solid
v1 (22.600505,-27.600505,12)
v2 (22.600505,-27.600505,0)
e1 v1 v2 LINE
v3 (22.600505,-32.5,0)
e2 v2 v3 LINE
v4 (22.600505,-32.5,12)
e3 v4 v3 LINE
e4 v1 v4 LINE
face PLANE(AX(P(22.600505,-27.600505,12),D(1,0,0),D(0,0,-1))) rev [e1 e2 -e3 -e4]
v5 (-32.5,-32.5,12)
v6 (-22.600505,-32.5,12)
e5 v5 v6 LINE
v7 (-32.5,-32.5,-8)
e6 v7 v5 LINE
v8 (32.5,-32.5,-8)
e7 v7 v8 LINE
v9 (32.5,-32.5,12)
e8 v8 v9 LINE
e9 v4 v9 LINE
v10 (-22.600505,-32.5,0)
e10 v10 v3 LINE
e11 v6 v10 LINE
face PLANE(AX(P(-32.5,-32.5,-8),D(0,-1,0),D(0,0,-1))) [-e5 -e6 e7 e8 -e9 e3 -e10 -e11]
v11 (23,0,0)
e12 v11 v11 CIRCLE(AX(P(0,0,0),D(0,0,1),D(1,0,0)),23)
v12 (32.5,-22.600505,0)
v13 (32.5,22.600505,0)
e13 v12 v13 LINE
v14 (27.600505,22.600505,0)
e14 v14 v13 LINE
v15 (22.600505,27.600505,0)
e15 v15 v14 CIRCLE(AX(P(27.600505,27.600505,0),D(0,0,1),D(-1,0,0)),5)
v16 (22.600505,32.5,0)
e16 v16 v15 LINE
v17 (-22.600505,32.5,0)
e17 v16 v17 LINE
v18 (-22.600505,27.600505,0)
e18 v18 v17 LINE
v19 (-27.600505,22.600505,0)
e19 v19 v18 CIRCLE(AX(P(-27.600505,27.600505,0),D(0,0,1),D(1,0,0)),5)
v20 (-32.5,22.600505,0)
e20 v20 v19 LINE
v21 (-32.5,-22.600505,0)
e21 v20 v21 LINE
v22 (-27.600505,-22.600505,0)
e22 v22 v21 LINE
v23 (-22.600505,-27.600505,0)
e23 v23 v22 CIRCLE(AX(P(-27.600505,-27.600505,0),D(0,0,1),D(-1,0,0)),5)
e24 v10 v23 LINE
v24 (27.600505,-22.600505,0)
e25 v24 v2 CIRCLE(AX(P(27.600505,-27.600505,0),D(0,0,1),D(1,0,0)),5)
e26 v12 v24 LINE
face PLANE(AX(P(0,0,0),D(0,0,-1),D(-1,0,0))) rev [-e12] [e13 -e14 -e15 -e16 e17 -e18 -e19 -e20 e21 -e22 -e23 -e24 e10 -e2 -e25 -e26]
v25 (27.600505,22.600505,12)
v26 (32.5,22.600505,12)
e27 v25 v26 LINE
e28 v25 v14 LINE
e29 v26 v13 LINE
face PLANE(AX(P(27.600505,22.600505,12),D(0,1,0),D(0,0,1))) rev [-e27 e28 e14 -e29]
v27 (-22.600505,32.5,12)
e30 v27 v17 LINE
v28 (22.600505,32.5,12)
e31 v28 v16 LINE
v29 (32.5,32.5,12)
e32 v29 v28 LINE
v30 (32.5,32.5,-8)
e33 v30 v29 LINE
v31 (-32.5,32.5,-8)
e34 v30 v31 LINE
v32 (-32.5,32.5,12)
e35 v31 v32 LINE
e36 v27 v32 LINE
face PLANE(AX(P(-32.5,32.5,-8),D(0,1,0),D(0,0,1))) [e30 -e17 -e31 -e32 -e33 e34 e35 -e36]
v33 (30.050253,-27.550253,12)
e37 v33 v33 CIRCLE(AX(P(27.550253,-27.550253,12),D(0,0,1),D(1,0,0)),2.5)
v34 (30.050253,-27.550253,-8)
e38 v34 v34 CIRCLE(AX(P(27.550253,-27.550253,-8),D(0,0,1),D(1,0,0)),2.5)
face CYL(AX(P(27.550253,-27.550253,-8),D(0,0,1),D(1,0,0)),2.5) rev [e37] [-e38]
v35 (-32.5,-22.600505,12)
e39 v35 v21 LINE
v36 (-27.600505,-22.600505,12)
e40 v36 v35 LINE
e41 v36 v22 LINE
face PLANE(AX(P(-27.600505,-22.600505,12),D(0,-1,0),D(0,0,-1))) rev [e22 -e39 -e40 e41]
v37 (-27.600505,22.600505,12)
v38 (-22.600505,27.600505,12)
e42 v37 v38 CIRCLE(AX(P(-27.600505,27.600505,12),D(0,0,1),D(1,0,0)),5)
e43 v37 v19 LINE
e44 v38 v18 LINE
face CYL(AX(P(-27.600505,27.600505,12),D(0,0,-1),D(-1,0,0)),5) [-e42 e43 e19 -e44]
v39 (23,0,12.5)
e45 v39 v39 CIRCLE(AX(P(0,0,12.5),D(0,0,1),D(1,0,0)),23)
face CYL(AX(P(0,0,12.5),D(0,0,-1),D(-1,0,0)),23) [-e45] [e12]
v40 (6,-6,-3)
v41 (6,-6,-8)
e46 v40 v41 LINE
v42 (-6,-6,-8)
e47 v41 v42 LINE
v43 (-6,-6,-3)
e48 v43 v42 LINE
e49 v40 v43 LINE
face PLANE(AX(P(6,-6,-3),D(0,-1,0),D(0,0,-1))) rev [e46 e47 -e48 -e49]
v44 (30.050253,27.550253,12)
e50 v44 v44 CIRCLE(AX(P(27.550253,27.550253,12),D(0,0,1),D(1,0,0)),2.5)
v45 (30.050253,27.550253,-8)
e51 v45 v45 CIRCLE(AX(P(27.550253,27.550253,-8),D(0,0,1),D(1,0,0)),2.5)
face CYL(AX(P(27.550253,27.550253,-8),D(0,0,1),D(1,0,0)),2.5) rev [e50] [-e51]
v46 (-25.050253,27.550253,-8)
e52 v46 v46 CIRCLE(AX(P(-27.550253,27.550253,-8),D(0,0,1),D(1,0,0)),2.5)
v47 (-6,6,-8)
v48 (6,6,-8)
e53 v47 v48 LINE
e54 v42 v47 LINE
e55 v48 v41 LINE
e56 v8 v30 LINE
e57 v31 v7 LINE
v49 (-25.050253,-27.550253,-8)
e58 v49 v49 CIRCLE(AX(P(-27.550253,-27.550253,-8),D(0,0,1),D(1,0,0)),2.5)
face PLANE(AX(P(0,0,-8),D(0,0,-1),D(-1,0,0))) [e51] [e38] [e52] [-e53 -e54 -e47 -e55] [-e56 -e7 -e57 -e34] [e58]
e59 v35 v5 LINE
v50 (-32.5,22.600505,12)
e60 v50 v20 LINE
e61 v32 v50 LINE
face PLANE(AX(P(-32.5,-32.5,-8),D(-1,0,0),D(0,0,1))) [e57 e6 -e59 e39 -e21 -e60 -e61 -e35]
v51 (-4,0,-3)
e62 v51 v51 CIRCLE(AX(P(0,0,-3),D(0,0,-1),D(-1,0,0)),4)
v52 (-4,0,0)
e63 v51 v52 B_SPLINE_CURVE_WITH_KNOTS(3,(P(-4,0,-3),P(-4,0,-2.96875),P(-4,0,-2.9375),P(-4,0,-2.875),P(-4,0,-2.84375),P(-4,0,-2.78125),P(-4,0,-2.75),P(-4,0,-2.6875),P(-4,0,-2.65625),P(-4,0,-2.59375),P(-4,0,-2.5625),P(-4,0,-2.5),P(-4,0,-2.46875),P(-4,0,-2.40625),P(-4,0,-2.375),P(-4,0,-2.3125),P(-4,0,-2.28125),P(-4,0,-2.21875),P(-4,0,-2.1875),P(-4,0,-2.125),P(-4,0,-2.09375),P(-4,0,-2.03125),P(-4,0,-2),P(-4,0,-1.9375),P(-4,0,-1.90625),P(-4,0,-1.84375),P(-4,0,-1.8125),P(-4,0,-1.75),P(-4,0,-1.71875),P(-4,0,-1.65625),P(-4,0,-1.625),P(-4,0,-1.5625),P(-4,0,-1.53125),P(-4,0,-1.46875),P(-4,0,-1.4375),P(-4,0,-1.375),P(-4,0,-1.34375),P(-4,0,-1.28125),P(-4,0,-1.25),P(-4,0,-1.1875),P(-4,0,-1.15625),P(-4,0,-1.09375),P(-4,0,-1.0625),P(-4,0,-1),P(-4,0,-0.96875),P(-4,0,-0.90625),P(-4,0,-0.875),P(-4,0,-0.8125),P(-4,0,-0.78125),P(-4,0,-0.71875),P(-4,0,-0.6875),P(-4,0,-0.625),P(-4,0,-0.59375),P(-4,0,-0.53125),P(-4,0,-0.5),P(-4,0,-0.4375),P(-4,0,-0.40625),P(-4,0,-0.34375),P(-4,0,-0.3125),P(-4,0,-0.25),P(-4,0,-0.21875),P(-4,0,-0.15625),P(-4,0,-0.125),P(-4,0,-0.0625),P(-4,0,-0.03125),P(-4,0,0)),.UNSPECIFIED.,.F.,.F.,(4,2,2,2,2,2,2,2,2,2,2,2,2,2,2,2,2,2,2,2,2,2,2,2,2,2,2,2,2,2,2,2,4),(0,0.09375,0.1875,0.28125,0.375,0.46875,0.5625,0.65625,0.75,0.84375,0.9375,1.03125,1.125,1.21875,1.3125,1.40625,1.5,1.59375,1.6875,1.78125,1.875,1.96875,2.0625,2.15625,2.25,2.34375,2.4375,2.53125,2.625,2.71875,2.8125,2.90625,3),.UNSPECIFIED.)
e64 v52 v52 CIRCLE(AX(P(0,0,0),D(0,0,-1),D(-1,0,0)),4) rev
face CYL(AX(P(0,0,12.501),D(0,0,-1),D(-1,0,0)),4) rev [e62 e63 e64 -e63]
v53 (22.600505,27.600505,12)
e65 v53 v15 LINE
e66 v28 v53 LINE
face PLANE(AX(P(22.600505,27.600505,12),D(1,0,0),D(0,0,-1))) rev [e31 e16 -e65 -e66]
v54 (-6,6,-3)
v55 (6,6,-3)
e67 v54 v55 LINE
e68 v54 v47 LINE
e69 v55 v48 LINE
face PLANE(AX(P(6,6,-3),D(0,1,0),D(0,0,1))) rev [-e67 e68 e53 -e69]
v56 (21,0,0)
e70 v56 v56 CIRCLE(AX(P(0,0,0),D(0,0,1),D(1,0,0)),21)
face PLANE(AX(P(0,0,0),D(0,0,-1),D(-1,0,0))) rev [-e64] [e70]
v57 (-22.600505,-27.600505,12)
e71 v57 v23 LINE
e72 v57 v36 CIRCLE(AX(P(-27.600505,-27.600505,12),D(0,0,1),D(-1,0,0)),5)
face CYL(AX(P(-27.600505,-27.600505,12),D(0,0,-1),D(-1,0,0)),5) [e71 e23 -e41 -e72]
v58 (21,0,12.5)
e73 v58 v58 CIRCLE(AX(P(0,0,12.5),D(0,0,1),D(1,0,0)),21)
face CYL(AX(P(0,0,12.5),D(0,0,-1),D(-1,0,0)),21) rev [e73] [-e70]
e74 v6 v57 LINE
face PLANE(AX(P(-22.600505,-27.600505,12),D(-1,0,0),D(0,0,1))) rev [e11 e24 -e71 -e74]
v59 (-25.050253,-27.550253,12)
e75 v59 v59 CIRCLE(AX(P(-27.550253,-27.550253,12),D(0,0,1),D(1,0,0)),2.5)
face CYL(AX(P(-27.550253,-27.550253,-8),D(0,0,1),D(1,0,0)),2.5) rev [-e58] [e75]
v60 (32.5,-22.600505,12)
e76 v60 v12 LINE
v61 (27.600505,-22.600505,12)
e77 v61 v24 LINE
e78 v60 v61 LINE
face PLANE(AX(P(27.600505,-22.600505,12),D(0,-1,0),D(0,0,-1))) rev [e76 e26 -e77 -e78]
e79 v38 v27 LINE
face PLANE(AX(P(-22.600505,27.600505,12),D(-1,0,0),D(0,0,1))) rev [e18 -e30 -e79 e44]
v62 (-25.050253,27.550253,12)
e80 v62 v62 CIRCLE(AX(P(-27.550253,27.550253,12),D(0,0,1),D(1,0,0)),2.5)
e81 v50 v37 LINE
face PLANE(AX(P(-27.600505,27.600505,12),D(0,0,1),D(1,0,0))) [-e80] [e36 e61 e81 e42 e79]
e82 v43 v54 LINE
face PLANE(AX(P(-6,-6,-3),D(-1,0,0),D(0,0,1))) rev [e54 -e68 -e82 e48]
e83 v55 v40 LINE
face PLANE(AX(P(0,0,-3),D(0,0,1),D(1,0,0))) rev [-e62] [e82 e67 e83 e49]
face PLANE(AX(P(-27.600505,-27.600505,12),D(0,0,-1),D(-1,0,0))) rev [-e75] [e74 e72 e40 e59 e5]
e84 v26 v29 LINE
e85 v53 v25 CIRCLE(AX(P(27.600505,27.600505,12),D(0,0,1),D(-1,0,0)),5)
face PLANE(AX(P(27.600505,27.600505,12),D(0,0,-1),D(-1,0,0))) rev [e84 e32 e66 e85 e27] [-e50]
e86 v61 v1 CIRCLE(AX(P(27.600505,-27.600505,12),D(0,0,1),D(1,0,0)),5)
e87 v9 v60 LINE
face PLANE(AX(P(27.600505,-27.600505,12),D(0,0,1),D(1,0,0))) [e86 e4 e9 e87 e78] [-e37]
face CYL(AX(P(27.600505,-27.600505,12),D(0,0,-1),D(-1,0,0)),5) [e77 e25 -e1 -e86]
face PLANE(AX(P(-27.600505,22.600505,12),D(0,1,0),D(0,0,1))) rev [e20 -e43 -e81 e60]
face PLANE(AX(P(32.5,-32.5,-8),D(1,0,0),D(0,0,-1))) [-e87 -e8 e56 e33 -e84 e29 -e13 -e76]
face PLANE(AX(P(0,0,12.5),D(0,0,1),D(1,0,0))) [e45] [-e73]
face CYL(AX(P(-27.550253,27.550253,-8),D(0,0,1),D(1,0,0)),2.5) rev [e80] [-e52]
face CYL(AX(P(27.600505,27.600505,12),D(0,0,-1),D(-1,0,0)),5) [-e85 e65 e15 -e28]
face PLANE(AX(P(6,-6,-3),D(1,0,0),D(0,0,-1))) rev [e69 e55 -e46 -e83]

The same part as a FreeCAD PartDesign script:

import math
import FreeCAD as App
import Part
import Sketcher

V = App.Vector
Q = App.Units.Quantity


def add_polygon(sketch, points):
    """Adds a closed chain of lines whose ends are joined by coincident constraints."""
    first, n = sketch.GeometryCount, len(points)
    for a, b in zip(points, points[1:] + points[:1]):
        sketch.addGeometry(Part.LineSegment(App.Vector(*a, 0), App.Vector(*b, 0)), False)
    for i in range(n):
        sketch.addConstraint(Sketcher.Constraint("Coincident", first + i, 2, first + (i + 1) % n, 1))

doc = App.newDocument("Part")
body = doc.addObject("PartDesign::Body", "Body")

sketch1 = body.newObject("Sketcher::SketchObject", "Sketch")
sketch1.AttachmentSupport = (doc.getObject("XY_Plane"), [""])
sketch1.MapMode = "FlatFace"
sketch1.addGeometry([
    Part.Circle(V(0, 0, 0), V(0, 0, 1), 23),
    Part.Circle(V(0, 0, 0), V(0, 0, 1), 21),
], False)
sketch1.addConstraint([
    Sketcher.Constraint("Coincident", 0, 3, -1, 1),
    Sketcher.Constraint("Coincident", 1, 3, -1, 1),
    Sketcher.Constraint("Diameter", 0, Q("46 mm")),
    Sketcher.Constraint("Diameter", 1, Q("42 mm")),
])
pad1 = body.newObject("PartDesign::Pad", "Pad")
pad1.Profile = sketch1
pad1.Length = 12.5

sketch2 = body.newObject("Sketcher::SketchObject", "Sketch001")
sketch2.AttachmentSupport = (doc.getObject("XY_Plane"), [""])
sketch2.MapMode = "FlatFace"
add_polygon(sketch2, [(-32.5, 32.5), (-32.5, -32.5), (32.5, -32.5), (32.5, 32.5)])
sketch2.addGeometry(Part.Circle(V(-27.550253, -27.550253, 0), V(0, 0, 1), 2.5), False)
sketch2.addGeometry(Part.Circle(V(27.550253, -27.550253, 0), V(0, 0, 1), 2.5), False)
sketch2.addGeometry(Part.Circle(V(-27.550253, 27.550253, 0), V(0, 0, 1), 2.5), False)
sketch2.addGeometry(Part.Circle(V(27.550253, 27.550253, 0), V(0, 0, 1), 2.5), False)
sketch2.addConstraint([
    Sketcher.Constraint("Vertical", 0),
    Sketcher.Constraint("Horizontal", 1),
    Sketcher.Constraint("Vertical", 2),
    Sketcher.Constraint("Horizontal", 3),
    Sketcher.Constraint("Equal", 4, 5),
    Sketcher.Constraint("Equal", 5, 6),
    Sketcher.Constraint("Equal", 6, 7),
    Sketcher.Constraint("Symmetric", 5, 3, 6, 3, -1, 1),
    Sketcher.Constraint("Symmetric", 4, 3, 7, 3, -1, 1),
    Sketcher.Constraint("Symmetric", 0, 2, 2, 2, -1, 1),
    Sketcher.Constraint("Symmetric", 4, 3, 5, 3, -2),
    Sketcher.Constraint("Equal", 3, 0),
    Sketcher.Constraint("Diameter", 4, Q("5 mm")),
    Sketcher.Constraint("DistanceX", 1, 1, 1, 2, Q("65 mm")),
    Sketcher.Constraint("DistanceX", 4, 3, -1, 1, Q("27.550253 mm")),
    Sketcher.Constraint("DistanceY", 4, 3, -1, 1, Q("27.550253 mm")),
])
pad2 = body.newObject("PartDesign::Pad", "Pad001")
pad2.Profile = sketch2
pad2.Length = 8
pad2.Reversed = True

sketch3 = body.newObject("Sketcher::SketchObject", "Sketch002")
sketch3.AttachmentSupport = (doc.getObject("XY_Plane"), [""])
sketch3.MapMode = "FlatFace"
sketch3.AttachmentOffset = App.Placement(V(0, 0, -8), App.Rotation())
add_polygon(sketch3, [(6, 6), (6, -6), (-6, -6), (-6, 6)])
sketch3.addConstraint([
    Sketcher.Constraint("Vertical", 0),
    Sketcher.Constraint("Horizontal", 1),
    Sketcher.Constraint("Vertical", 2),
    Sketcher.Constraint("Horizontal", 3),
    Sketcher.Constraint("Symmetric", 0, 2, 2, 2, -1, 1),
    Sketcher.Constraint("Equal", 3, 0),
    Sketcher.Constraint("DistanceX", 1, 2, 1, 1, Q("12 mm")),
])
pocket1 = body.newObject("PartDesign::Pocket", "Pocket")
pocket1.Profile = sketch3
pocket1.Length = 5
pocket1.Reversed = True

sketch4 = body.newObject("Sketcher::SketchObject", "Sketch003")
sketch4.AttachmentSupport = (doc.getObject("XY_Plane"), [""])
sketch4.MapMode = "FlatFace"
sketch4.AttachmentOffset = App.Placement(V(0, 0, -3), App.Rotation())
sketch4.addGeometry(Part.Circle(V(0, 0, 0), V(0, 0, 1), 4), False)
sketch4.addConstraint([
    Sketcher.Constraint("Coincident", 0, 3, -1, 1),
    Sketcher.Constraint("Diameter", 0, Q("8 mm")),
])
pocket2 = body.newObject("PartDesign::Pocket", "Pocket001")
pocket2.Profile = sketch4
pocket2.Type = "UpToFirst"
pocket2.Reversed = True

sketch5 = body.newObject("Sketcher::SketchObject", "Sketch004")
sketch5.AttachmentSupport = (doc.getObject("XY_Plane"), [""])
sketch5.MapMode = "FlatFace"
sketch5.AttachmentOffset = App.Placement(V(0, 0, 12), App.Rotation())
sketch5.addGeometry([
    Part.LineSegment(V(27.600505, 22.600505, 0), V(32.5, 22.600505, 0)),
    Part.LineSegment(V(32.5, 22.600505, 0), V(32.5, 32.5, 0)),
    Part.LineSegment(V(32.5, 32.5, 0), V(22.600505, 32.5, 0)),
    Part.LineSegment(V(22.600505, 32.5, 0), V(22.600505, 27.600505, 0)),
    Part.ArcOfCircle(Part.Circle(V(27.600505, 27.600505, 0), V(0, 0, 1), 5), math.radians(180), math.radians(270)),
    Part.Circle(V(27.550253, 27.550253, 0), V(0, 0, 1), 2.5),
    Part.LineSegment(V(-32.5, 22.600505, 0), V(-27.600505, 22.600505, 0)),
    Part.ArcOfCircle(Part.Circle(V(-27.600505, 27.600505, 0), V(0, 0, 1), 5), math.radians(-90), math.radians(0)),
    Part.LineSegment(V(-22.600505, 27.600505, 0), V(-22.600505, 32.5, 0)),
    Part.LineSegment(V(-22.600505, 32.5, 0), V(-32.5, 32.5, 0)),
    Part.LineSegment(V(-32.5, 32.5, 0), V(-32.5, 22.600505, 0)),
    Part.Circle(V(-27.550253, 27.550253, 0), V(0, 0, 1), 2.5),
    Part.LineSegment(V(-27.600505, -22.600505, 0), V(-32.5, -22.600505, 0)),
    Part.LineSegment(V(-32.5, -22.600505, 0), V(-32.5, -32.5, 0)),
    Part.LineSegment(V(-32.5, -32.5, 0), V(-22.600505, -32.5, 0)),
    Part.LineSegment(V(-22.600505, -32.5, 0), V(-22.600505, -27.600505, 0)),
    Part.ArcOfCircle(Part.Circle(V(-27.600505, -27.600505, 0), V(0, 0, 1), 5), math.radians(0), math.radians(90)),
    Part.Circle(V(-27.550253, -27.550253, 0), V(0, 0, 1), 2.5),
    Part.LineSegment(V(32.5, -22.600505, 0), V(27.600505, -22.600505, 0)),
    Part.ArcOfCircle(Part.Circle(V(27.600505, -27.600505, 0), V(0, 0, 1), 5), math.radians(90), math.radians(180)),
    Part.LineSegment(V(22.600505, -27.600505, 0), V(22.600505, -32.5, 0)),
    Part.LineSegment(V(22.600505, -32.5, 0), V(32.5, -32.5, 0)),
    Part.LineSegment(V(32.5, -32.5, 0), V(32.5, -22.600505, 0)),
    Part.Circle(V(27.550253, -27.550253, 0), V(0, 0, 1), 2.5),
], False)
sketch5.addConstraint([
    Sketcher.Constraint("Coincident", 0, 2, 1, 1),
    Sketcher.Constraint("Coincident", 1, 2, 2, 1),
    Sketcher.Constraint("Coincident", 2, 2, 3, 1),
    Sketcher.Constraint("Tangent", 3, 2, 4, 1),
    Sketcher.Constraint("Tangent", 4, 2, 0, 1),
    Sketcher.Constraint("Tangent", 6, 2, 7, 1),
    Sketcher.Constraint("Tangent", 7, 2, 8, 1),
    Sketcher.Constraint("Coincident", 8, 2, 9, 1),
    Sketcher.Constraint("Coincident", 9, 2, 10, 1),
    Sketcher.Constraint("Coincident", 10, 2, 6, 1),
    Sketcher.Constraint("Coincident", 12, 2, 13, 1),
    Sketcher.Constraint("Coincident", 13, 2, 14, 1),
    Sketcher.Constraint("Coincident", 14, 2, 15, 1),
    Sketcher.Constraint("Tangent", 15, 2, 16, 1),
    Sketcher.Constraint("Tangent", 16, 2, 12, 1),
    Sketcher.Constraint("Tangent", 18, 2, 19, 1),
    Sketcher.Constraint("Tangent", 19, 2, 20, 1),
    Sketcher.Constraint("Coincident", 20, 2, 21, 1),
    Sketcher.Constraint("Coincident", 21, 2, 22, 1),
    Sketcher.Constraint("Coincident", 22, 2, 18, 1),
    Sketcher.Constraint("Horizontal", 0),
    Sketcher.Constraint("Vertical", 1),
    Sketcher.Constraint("Horizontal", 2),
    Sketcher.Constraint("Vertical", 3),
    Sketcher.Constraint("Horizontal", 6),
    Sketcher.Constraint("Vertical", 8),
    Sketcher.Constraint("Horizontal", 9),
    Sketcher.Constraint("Vertical", 10),
    Sketcher.Constraint("Horizontal", 12),
    Sketcher.Constraint("Vertical", 13),
    Sketcher.Constraint("Horizontal", 14),
    Sketcher.Constraint("Vertical", 15),
    Sketcher.Constraint("Horizontal", 18),
    Sketcher.Constraint("Vertical", 20),
    Sketcher.Constraint("Horizontal", 21),
    Sketcher.Constraint("Vertical", 22),
    Sketcher.Constraint("Equal", 4, 7),
    Sketcher.Constraint("Equal", 5, 11),
    Sketcher.Constraint("Equal", 7, 16),
    Sketcher.Constraint("Equal", 11, 17),
    Sketcher.Constraint("Equal", 16, 19),
    Sketcher.Constraint("Equal", 17, 23),
    Sketcher.Constraint("Symmetric", 4, 3, 16, 3, -1, 1),
    Sketcher.Constraint("Symmetric", 5, 3, 17, 3, -1, 1),
    Sketcher.Constraint("Symmetric", 7, 3, 19, 3, -1, 1),
    Sketcher.Constraint("Symmetric", 11, 3, 23, 3, -1, 1),
    Sketcher.Constraint("Symmetric", 1, 2, 13, 2, -1, 1),
    Sketcher.Constraint("Symmetric", 9, 2, 21, 2, -1, 1),
    Sketcher.Constraint("Symmetric", 4, 3, 7, 3, -2),
    Sketcher.Constraint("Symmetric", 5, 3, 11, 3, -2),
    Sketcher.Constraint("Symmetric", 1, 2, 9, 2, -2),
    Sketcher.Constraint("Equal", 21, 1),
    Sketcher.Constraint("Diameter", 5, Q("5 mm")),
    Sketcher.Constraint("Radius", 4, Q("5 mm")),
    Sketcher.Constraint("DistanceX", -1, 1, 0, 2, Q("32.5 mm")),
    Sketcher.Constraint("DistanceY", -1, 1, 1, 2, Q("32.5 mm")),
    Sketcher.Constraint("DistanceX", 0, 1, 0, 2, Q("4.899495 mm")),
    Sketcher.Constraint("DistanceX", -1, 1, 5, 3, Q("27.550253 mm")),
    Sketcher.Constraint("DistanceY", -1, 1, 5, 3, Q("27.550253 mm")),
])
pad3 = body.newObject("PartDesign::Pad", "Pad002")
pad3.Profile = sketch5
pad3.Length = 12
pad3.Reversed = True

doc.recompute()
